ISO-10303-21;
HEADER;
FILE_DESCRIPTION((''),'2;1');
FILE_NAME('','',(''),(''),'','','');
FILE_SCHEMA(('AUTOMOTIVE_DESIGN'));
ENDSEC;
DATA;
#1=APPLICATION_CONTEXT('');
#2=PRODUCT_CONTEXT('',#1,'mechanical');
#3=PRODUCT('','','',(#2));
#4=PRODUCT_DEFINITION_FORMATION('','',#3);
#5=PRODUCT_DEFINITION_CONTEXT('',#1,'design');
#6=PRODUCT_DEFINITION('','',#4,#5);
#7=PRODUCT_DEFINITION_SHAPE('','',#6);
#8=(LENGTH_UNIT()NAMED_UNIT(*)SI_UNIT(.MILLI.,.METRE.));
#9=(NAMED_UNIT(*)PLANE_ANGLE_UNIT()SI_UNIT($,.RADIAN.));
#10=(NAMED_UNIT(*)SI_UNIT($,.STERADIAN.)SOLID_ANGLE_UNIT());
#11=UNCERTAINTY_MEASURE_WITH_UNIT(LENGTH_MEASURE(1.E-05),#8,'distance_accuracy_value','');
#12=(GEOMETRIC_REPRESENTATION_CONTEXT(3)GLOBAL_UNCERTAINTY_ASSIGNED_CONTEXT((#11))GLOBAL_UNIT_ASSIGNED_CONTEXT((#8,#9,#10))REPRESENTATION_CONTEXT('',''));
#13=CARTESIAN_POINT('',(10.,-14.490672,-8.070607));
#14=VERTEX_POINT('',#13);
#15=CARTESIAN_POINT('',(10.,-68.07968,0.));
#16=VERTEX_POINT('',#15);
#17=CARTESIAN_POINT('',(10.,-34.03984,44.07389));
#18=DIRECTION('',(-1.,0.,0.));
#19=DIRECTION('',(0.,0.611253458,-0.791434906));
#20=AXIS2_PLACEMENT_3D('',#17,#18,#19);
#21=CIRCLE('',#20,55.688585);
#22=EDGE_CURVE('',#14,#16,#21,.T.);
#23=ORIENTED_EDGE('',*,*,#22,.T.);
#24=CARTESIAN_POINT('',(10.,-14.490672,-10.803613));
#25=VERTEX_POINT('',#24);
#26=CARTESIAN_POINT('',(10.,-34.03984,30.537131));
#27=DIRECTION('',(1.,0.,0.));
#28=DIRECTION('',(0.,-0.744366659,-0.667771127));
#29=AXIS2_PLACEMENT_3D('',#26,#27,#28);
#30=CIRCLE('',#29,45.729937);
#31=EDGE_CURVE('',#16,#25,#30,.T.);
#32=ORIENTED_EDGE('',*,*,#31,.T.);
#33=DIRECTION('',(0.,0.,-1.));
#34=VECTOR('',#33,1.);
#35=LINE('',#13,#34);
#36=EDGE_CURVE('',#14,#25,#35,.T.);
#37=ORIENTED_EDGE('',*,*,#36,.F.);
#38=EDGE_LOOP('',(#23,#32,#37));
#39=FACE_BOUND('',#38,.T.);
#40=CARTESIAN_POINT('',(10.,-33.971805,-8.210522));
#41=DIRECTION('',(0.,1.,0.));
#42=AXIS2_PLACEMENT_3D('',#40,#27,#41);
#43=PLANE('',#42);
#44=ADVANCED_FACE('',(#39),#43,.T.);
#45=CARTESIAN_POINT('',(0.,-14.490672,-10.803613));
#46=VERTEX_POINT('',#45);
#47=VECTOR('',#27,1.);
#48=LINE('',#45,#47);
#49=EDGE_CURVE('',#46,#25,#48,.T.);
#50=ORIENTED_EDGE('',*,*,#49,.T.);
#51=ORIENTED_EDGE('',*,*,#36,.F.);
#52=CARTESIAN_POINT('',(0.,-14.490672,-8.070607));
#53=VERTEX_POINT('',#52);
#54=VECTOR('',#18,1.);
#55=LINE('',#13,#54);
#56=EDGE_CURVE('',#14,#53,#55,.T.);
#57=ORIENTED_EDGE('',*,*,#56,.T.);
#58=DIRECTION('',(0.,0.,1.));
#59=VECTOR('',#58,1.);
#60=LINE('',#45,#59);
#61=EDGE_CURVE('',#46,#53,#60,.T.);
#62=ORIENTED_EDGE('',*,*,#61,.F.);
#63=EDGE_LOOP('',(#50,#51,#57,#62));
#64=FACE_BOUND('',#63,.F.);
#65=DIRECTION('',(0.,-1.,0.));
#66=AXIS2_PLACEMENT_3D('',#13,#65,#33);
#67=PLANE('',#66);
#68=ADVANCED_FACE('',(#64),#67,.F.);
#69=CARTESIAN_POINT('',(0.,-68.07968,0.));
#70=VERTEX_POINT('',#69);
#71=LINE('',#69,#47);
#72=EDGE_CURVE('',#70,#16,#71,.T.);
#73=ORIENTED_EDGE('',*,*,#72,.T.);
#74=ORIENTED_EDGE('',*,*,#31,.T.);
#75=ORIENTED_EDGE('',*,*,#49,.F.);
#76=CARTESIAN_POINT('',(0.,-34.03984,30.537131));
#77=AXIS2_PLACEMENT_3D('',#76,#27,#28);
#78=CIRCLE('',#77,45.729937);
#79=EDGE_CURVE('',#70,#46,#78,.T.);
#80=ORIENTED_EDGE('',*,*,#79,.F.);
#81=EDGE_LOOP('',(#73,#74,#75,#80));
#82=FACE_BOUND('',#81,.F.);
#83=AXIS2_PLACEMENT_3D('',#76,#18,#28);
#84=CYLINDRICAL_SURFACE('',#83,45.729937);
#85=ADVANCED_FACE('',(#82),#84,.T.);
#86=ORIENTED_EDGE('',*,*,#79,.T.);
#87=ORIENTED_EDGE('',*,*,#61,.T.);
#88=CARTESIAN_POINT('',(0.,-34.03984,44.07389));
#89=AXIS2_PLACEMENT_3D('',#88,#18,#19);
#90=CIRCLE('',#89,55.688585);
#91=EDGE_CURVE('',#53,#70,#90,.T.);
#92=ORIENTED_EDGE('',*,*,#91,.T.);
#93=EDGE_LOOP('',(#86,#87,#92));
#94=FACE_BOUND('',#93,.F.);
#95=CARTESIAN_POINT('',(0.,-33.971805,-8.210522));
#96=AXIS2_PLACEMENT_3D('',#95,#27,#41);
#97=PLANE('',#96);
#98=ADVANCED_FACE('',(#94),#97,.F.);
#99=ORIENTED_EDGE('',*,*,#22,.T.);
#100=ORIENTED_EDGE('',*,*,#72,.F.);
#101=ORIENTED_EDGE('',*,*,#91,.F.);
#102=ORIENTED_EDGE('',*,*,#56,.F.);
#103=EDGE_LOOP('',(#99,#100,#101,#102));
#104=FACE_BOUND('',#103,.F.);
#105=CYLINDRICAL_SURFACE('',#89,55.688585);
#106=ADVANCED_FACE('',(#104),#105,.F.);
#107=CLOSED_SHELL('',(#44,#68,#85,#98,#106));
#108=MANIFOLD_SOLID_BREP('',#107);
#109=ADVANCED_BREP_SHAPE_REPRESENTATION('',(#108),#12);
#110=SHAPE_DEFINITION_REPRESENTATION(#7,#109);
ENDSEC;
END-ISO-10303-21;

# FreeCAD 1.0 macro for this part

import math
import FreeCAD as App
import Part
import Sketcher
from FreeCAD import Vector
Q = App.Units.Quantity

doc = App.newDocument("Part")
body = doc.addObject("PartDesign::Body", "Body")

# Sketch on YZ plane
sketch1 = doc.addObject("Sketcher::SketchObject", "Sketch")
body.addObject(sketch1)
sketch1.AttachmentSupport = (doc.YZ_Plane, [""])
sketch1.MapMode = "FlatFace"
sketch1.addGeometry([
    Part.ArcOfCircle(Part.Circle(Vector(-34, 44, 0), Vector(0, 0, 1), 56), math.radians(-128), math.radians(-52)),
    Part.ArcOfCircle(Part.Circle(Vector(-34, 31, 0), Vector(0, 0, 1), 46), math.radians(-138), math.radians(-65)),
    Part.LineSegment(Vector(-14, -11, 0), Vector(0, -11, 0)),
    Part.LineSegment(Vector(0, -11, 0), Vector(0, 0, 0)),
], False)
sketch1.addConstraint([
    Sketcher.Constraint("Coincident", 0, 1, 1, 1),
    Sketcher.Constraint("Coincident", 1, 2, 2, 1),
    Sketcher.Constraint("Coincident", 2, 2, 3, 1),
    Sketcher.Constraint("Coincident", 3, 2, 0, 2),
    Sketcher.Constraint("Horizontal", 2),
    Sketcher.Constraint("Vertical", 3),
    Sketcher.Constraint("Coincident", 3, 2, -1, 1),
    Sketcher.Constraint("PointOnObject", 0, 1, -1),
    Sketcher.Constraint("Vertical", 0, 3, 1, 3),
    Sketcher.Constraint("Radius", 0, Q("55.688585 mm")),
    Sketcher.Constraint("Radius", 1, Q("45.729937 mm")),
    Sketcher.Constraint("DistanceX", 2, 1, 2, 2, Q("14.490672 mm")),
    Sketcher.Constraint("DistanceY", 3, 1, 3, 2, Q("10.803613 mm")),
])
pad1 = doc.addObject("PartDesign::Pad", "Pad")
body.addObject(pad1)
pad1.Profile = sketch1
pad1.Length = 10

# Sketch on YZ plane
sketch2 = doc.addObject("Sketcher::SketchObject", "Sketch001")
body.addObject(sketch2)
sketch2.AttachmentSupport = (doc.YZ_Plane, [""])
sketch2.MapMode = "FlatFace"
sketch2.addGeometry([
    Part.LineSegment(Vector(0, -10.8, 0), Vector(-14.5, -10.8, 0)),
    Part.LineSegment(Vector(-14.5, -10.8, 0), Vector(-14.5, -8.1, 0)),
    Part.ArcOfCircle(Part.Circle(Vector(-34, 44.1, 0), Vector(0, 0, 1), 55.7), math.radians(-69.45), math.radians(-52.32)),
    Part.LineSegment(Vector(0, 0, 0), Vector(0, -10.8, 0)),
], False)
sketch2.addConstraint([
    Sketcher.Constraint("Coincident", 0, 2, 1, 1),
    Sketcher.Constraint("Coincident", 1, 2, 2, 1),
    Sketcher.Constraint("Coincident", 2, 2, 3, 1),
    Sketcher.Constraint("Coincident", 3, 2, 0, 1),
    Sketcher.Constraint("Horizontal", 0),
    Sketcher.Constraint("Vertical", 1),
    Sketcher.Constraint("Vertical", 3),
    Sketcher.Constraint("Coincident", 2, 2, -1, 1),
    Sketcher.Constraint("Radius", 2, Q("55.688585 mm")),
    Sketcher.Constraint("DistanceX", 0, 2, 0, 1, Q("14.490672 mm")),
    Sketcher.Constraint("DistanceY", 1, 1, 1, 2, Q("2.733006 mm")),
    Sketcher.Constraint("DistanceY", 3, 2, 3, 1, Q("10.803613 mm")),
])
pad2 = doc.addObject("PartDesign::Pad", "Pad001")
body.addObject(pad2)
pad2.Profile = sketch2
pad2.Length = 35
pad2.Reversed = True

# Sketch on YZ plane
sketch3 = doc.addObject("Sketcher::SketchObject", "Sketch002")
body.addObject(sketch3)
sketch3.AttachmentSupport = (doc.YZ_Plane, [""])
sketch3.MapMode = "FlatFace"
sketch3.AttachmentOffset = App.Placement(Vector(0, 0, 10), App.Rotation())
sketch3.addGeometry([
    Part.LineSegment(Vector(-14.5, -8.1, 0), Vector(-14.5, -10.8, 0)),
    Part.LineSegment(Vector(-14.5, -10.8, 0), Vector(0, -10.8, 0)),
    Part.LineSegment(Vector(0, -10.8, 0), Vector(0, 0, 0)),
    Part.ArcOfCircle(Part.Circle(Vector(-34, 44.1, 0), Vector(0, 0, 1), 55.7), math.radians(-69.45), math.radians(-52.32)),
], False)
sketch3.addConstraint([
    Sketcher.Constraint("Coincident", 0, 2, 1, 1),
    Sketcher.Constraint("Coincident", 1, 2, 2, 1),
    Sketcher.Constraint("Coincident", 2, 2, 3, 2),
    Sketcher.Constraint("Coincident", 3, 1, 0, 1),
    Sketcher.Constraint("Vertical", 0),
    Sketcher.Constraint("Horizontal", 1),
    Sketcher.Constraint("Vertical", 2),
    Sketcher.Constraint("Coincident", 2, 2, -1, 1),
    Sketcher.Constraint("Radius", 3, Q("55.688585 mm")),
    Sketcher.Constraint("DistanceX", 1, 1, 1, 2, Q("14.490672 mm")),
    Sketcher.Constraint("DistanceY", 0, 2, 0, 1, Q("2.733006 mm")),
    Sketcher.Constraint("DistanceY", 2, 1, 2, 2, Q("10.803613 mm")),
])
pocket1 = doc.addObject("PartDesign::Pocket", "Pocket")
body.addObject(pocket1)
pocket1.Profile = sketch3
pocket1.Type = "ThroughAll"

doc.recompute()
